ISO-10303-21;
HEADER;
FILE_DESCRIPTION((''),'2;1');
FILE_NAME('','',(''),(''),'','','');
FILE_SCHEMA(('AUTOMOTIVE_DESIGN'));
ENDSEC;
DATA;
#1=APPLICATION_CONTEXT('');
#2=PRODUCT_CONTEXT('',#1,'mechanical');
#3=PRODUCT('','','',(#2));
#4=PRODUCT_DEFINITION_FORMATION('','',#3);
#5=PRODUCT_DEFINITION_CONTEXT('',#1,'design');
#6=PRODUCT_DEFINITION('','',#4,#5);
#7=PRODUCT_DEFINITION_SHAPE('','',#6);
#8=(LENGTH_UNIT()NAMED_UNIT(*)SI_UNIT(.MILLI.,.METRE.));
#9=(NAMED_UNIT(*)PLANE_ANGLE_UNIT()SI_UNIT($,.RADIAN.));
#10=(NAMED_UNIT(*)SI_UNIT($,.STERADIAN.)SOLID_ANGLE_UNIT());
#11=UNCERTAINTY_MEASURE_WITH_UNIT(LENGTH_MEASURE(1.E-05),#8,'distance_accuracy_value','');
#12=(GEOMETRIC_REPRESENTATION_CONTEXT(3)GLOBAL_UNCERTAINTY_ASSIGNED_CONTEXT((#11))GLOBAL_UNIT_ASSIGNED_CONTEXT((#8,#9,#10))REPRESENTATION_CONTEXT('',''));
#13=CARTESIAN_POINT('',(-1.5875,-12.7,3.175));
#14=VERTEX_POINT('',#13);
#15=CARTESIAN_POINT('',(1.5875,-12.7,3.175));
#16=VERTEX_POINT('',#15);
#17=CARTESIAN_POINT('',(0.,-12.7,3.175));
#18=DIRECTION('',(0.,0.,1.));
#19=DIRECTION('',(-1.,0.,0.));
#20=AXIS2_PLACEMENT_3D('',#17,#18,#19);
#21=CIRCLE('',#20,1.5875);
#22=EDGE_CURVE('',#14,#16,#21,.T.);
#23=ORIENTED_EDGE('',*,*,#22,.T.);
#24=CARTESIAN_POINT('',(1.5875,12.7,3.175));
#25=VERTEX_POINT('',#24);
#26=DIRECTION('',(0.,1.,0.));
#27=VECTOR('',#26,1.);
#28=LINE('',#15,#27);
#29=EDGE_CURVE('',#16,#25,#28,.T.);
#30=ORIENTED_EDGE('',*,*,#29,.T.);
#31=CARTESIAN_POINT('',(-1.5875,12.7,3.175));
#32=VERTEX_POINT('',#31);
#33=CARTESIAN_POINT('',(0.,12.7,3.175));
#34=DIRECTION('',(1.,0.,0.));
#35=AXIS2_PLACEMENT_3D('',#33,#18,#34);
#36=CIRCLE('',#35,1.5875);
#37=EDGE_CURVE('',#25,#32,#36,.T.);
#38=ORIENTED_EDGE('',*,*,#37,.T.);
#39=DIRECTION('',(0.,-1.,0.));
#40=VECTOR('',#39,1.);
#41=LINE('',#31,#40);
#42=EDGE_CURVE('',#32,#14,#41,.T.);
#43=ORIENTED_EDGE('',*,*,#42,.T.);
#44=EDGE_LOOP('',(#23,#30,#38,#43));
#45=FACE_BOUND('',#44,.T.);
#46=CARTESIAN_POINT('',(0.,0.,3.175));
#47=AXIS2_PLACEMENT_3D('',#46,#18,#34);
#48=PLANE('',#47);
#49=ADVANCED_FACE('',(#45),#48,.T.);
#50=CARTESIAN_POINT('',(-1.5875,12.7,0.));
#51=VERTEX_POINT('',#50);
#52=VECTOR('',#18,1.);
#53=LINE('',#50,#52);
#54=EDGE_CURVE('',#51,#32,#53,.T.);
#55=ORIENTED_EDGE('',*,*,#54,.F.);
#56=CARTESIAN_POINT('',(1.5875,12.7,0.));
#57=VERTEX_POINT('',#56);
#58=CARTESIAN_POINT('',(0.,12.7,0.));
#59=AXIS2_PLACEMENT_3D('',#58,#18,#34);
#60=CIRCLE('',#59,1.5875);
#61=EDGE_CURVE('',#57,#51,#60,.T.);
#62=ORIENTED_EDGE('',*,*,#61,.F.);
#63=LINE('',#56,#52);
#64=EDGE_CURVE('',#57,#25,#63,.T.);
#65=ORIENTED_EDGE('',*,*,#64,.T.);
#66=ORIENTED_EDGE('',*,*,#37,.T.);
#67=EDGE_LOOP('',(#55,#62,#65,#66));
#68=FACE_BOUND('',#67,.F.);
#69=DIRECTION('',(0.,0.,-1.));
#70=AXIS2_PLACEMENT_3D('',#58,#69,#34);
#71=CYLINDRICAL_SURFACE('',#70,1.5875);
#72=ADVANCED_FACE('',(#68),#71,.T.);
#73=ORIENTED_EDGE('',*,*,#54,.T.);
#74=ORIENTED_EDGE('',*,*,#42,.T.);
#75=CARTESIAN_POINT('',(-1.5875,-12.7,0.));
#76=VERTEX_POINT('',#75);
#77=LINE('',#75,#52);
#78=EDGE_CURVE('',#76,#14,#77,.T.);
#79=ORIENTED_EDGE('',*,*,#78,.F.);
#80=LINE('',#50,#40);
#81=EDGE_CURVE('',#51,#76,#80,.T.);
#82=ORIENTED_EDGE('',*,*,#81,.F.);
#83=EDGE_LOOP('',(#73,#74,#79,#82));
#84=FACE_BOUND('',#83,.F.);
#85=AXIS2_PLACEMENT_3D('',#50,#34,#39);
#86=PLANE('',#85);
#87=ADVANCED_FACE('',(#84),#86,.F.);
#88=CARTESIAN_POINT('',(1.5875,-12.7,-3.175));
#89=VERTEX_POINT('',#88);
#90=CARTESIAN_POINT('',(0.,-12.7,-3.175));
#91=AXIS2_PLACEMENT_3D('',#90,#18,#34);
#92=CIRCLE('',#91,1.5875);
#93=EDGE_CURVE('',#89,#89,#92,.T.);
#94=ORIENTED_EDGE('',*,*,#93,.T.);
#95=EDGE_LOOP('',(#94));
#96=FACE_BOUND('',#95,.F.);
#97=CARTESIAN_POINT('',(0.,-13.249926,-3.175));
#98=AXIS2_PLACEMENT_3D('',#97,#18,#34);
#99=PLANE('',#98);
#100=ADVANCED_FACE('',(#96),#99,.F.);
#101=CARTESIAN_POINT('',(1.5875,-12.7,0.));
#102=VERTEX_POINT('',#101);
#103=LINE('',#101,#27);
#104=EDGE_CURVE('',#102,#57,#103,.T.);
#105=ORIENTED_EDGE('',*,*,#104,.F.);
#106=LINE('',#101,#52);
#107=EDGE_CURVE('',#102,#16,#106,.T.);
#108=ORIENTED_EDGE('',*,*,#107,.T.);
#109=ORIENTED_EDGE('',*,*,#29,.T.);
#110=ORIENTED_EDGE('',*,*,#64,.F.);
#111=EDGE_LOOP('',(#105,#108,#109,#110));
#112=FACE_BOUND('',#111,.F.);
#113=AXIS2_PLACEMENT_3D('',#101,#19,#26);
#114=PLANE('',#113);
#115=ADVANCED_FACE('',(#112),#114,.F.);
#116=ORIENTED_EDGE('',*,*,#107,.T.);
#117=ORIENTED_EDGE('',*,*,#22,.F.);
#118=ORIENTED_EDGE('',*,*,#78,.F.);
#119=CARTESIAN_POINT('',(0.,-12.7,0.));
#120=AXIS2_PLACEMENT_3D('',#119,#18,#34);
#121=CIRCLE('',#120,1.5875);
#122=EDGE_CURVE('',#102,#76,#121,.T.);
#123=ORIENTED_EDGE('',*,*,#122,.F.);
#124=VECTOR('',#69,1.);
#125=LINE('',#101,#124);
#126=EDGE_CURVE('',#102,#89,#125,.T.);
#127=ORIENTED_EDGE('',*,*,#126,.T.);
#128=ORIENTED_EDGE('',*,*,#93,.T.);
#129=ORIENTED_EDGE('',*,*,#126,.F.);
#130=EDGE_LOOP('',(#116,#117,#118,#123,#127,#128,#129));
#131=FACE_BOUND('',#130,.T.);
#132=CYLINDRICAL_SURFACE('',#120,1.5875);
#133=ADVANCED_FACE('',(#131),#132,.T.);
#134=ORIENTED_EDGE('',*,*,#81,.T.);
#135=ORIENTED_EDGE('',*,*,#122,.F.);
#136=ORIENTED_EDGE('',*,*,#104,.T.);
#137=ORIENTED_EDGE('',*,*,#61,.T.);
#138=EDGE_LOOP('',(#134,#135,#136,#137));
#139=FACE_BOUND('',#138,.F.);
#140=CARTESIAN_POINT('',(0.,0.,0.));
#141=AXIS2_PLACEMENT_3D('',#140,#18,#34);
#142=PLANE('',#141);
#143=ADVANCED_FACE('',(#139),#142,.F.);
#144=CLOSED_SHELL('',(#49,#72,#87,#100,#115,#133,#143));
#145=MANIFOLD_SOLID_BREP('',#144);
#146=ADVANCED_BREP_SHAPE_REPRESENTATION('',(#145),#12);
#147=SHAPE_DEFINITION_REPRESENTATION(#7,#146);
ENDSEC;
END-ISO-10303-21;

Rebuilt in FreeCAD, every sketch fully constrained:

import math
import FreeCAD as App
import Part
import Sketcher
Q = App.Units.Quantity

doc = App.newDocument("Part")
body = doc.addObject("PartDesign::Body", "Body")

# Sketch on XY plane
sketch1 = body.newObject("Sketcher::SketchObject", "Sketch")
sketch1.AttachmentSupport = (doc.getObject("XY_Plane"), [""])
sketch1.MapMode = "FlatFace"
sketch1.addGeometry([
    Part.LineSegment(App.Vector(1.6, -12.7, 0), App.Vector(1.6, 12.7, 0)),
    Part.ArcOfCircle(Part.Circle(App.Vector(0, 12.7, 0), App.Vector(0, 0, 1), 1.6), math.radians(0), math.radians(180)),
    Part.LineSegment(App.Vector(-1.6, 12.7, 0), App.Vector(-1.6, -12.7, 0)),
    Part.ArcOfCircle(Part.Circle(App.Vector(0, -12.7, 0), App.Vector(0, 0, 1), 1.6), math.radians(180), math.radians(360)),
], False)
sketch1.addConstraint([
    Sketcher.Constraint("Tangent", 0, 2, 1, 1),
    Sketcher.Constraint("Tangent", 1, 2, 2, 1),
    Sketcher.Constraint("Tangent", 2, 2, 3, 1),
    Sketcher.Constraint("Tangent", 3, 2, 0, 1),
    Sketcher.Constraint("Vertical", 0),
    Sketcher.Constraint("Vertical", 2),
    Sketcher.Constraint("Symmetric", 1, 3, 3, 3, -1, 1),
    Sketcher.Constraint("DistanceY", 0, 1, 0, 2, Q("1 in")),
    Sketcher.Constraint("Radius", 1, Q("0.0625 in")),
])
pad1 = body.newObject("PartDesign::Pad", "Pad")
pad1.Profile = sketch1
pad1.Length = Q("0.125 in")

# Sketch on XY plane
sketch2 = body.newObject("Sketcher::SketchObject", "Sketch001")
sketch2.AttachmentSupport = (doc.getObject("XY_Plane"), [""])
sketch2.MapMode = "FlatFace"
sketch2.addGeometry(Part.Circle(App.Vector(0, -12.7, 0), App.Vector(0, 0, 1), 1.6), False)
sketch2.addConstraint([
    Sketcher.Constraint("PointOnObject", 0, 3, -2),
    Sketcher.Constraint("Diameter", 0, Q("0.125 in")),
    Sketcher.Constraint("DistanceY", 0, 3, -1, 1, Q("0.5 in")),
])
pad2 = body.newObject("PartDesign::Pad", "Pad001")
pad2.Profile = sketch2
pad2.Length = Q("0.125 in")
pad2.Reversed = True

doc.recompute()
